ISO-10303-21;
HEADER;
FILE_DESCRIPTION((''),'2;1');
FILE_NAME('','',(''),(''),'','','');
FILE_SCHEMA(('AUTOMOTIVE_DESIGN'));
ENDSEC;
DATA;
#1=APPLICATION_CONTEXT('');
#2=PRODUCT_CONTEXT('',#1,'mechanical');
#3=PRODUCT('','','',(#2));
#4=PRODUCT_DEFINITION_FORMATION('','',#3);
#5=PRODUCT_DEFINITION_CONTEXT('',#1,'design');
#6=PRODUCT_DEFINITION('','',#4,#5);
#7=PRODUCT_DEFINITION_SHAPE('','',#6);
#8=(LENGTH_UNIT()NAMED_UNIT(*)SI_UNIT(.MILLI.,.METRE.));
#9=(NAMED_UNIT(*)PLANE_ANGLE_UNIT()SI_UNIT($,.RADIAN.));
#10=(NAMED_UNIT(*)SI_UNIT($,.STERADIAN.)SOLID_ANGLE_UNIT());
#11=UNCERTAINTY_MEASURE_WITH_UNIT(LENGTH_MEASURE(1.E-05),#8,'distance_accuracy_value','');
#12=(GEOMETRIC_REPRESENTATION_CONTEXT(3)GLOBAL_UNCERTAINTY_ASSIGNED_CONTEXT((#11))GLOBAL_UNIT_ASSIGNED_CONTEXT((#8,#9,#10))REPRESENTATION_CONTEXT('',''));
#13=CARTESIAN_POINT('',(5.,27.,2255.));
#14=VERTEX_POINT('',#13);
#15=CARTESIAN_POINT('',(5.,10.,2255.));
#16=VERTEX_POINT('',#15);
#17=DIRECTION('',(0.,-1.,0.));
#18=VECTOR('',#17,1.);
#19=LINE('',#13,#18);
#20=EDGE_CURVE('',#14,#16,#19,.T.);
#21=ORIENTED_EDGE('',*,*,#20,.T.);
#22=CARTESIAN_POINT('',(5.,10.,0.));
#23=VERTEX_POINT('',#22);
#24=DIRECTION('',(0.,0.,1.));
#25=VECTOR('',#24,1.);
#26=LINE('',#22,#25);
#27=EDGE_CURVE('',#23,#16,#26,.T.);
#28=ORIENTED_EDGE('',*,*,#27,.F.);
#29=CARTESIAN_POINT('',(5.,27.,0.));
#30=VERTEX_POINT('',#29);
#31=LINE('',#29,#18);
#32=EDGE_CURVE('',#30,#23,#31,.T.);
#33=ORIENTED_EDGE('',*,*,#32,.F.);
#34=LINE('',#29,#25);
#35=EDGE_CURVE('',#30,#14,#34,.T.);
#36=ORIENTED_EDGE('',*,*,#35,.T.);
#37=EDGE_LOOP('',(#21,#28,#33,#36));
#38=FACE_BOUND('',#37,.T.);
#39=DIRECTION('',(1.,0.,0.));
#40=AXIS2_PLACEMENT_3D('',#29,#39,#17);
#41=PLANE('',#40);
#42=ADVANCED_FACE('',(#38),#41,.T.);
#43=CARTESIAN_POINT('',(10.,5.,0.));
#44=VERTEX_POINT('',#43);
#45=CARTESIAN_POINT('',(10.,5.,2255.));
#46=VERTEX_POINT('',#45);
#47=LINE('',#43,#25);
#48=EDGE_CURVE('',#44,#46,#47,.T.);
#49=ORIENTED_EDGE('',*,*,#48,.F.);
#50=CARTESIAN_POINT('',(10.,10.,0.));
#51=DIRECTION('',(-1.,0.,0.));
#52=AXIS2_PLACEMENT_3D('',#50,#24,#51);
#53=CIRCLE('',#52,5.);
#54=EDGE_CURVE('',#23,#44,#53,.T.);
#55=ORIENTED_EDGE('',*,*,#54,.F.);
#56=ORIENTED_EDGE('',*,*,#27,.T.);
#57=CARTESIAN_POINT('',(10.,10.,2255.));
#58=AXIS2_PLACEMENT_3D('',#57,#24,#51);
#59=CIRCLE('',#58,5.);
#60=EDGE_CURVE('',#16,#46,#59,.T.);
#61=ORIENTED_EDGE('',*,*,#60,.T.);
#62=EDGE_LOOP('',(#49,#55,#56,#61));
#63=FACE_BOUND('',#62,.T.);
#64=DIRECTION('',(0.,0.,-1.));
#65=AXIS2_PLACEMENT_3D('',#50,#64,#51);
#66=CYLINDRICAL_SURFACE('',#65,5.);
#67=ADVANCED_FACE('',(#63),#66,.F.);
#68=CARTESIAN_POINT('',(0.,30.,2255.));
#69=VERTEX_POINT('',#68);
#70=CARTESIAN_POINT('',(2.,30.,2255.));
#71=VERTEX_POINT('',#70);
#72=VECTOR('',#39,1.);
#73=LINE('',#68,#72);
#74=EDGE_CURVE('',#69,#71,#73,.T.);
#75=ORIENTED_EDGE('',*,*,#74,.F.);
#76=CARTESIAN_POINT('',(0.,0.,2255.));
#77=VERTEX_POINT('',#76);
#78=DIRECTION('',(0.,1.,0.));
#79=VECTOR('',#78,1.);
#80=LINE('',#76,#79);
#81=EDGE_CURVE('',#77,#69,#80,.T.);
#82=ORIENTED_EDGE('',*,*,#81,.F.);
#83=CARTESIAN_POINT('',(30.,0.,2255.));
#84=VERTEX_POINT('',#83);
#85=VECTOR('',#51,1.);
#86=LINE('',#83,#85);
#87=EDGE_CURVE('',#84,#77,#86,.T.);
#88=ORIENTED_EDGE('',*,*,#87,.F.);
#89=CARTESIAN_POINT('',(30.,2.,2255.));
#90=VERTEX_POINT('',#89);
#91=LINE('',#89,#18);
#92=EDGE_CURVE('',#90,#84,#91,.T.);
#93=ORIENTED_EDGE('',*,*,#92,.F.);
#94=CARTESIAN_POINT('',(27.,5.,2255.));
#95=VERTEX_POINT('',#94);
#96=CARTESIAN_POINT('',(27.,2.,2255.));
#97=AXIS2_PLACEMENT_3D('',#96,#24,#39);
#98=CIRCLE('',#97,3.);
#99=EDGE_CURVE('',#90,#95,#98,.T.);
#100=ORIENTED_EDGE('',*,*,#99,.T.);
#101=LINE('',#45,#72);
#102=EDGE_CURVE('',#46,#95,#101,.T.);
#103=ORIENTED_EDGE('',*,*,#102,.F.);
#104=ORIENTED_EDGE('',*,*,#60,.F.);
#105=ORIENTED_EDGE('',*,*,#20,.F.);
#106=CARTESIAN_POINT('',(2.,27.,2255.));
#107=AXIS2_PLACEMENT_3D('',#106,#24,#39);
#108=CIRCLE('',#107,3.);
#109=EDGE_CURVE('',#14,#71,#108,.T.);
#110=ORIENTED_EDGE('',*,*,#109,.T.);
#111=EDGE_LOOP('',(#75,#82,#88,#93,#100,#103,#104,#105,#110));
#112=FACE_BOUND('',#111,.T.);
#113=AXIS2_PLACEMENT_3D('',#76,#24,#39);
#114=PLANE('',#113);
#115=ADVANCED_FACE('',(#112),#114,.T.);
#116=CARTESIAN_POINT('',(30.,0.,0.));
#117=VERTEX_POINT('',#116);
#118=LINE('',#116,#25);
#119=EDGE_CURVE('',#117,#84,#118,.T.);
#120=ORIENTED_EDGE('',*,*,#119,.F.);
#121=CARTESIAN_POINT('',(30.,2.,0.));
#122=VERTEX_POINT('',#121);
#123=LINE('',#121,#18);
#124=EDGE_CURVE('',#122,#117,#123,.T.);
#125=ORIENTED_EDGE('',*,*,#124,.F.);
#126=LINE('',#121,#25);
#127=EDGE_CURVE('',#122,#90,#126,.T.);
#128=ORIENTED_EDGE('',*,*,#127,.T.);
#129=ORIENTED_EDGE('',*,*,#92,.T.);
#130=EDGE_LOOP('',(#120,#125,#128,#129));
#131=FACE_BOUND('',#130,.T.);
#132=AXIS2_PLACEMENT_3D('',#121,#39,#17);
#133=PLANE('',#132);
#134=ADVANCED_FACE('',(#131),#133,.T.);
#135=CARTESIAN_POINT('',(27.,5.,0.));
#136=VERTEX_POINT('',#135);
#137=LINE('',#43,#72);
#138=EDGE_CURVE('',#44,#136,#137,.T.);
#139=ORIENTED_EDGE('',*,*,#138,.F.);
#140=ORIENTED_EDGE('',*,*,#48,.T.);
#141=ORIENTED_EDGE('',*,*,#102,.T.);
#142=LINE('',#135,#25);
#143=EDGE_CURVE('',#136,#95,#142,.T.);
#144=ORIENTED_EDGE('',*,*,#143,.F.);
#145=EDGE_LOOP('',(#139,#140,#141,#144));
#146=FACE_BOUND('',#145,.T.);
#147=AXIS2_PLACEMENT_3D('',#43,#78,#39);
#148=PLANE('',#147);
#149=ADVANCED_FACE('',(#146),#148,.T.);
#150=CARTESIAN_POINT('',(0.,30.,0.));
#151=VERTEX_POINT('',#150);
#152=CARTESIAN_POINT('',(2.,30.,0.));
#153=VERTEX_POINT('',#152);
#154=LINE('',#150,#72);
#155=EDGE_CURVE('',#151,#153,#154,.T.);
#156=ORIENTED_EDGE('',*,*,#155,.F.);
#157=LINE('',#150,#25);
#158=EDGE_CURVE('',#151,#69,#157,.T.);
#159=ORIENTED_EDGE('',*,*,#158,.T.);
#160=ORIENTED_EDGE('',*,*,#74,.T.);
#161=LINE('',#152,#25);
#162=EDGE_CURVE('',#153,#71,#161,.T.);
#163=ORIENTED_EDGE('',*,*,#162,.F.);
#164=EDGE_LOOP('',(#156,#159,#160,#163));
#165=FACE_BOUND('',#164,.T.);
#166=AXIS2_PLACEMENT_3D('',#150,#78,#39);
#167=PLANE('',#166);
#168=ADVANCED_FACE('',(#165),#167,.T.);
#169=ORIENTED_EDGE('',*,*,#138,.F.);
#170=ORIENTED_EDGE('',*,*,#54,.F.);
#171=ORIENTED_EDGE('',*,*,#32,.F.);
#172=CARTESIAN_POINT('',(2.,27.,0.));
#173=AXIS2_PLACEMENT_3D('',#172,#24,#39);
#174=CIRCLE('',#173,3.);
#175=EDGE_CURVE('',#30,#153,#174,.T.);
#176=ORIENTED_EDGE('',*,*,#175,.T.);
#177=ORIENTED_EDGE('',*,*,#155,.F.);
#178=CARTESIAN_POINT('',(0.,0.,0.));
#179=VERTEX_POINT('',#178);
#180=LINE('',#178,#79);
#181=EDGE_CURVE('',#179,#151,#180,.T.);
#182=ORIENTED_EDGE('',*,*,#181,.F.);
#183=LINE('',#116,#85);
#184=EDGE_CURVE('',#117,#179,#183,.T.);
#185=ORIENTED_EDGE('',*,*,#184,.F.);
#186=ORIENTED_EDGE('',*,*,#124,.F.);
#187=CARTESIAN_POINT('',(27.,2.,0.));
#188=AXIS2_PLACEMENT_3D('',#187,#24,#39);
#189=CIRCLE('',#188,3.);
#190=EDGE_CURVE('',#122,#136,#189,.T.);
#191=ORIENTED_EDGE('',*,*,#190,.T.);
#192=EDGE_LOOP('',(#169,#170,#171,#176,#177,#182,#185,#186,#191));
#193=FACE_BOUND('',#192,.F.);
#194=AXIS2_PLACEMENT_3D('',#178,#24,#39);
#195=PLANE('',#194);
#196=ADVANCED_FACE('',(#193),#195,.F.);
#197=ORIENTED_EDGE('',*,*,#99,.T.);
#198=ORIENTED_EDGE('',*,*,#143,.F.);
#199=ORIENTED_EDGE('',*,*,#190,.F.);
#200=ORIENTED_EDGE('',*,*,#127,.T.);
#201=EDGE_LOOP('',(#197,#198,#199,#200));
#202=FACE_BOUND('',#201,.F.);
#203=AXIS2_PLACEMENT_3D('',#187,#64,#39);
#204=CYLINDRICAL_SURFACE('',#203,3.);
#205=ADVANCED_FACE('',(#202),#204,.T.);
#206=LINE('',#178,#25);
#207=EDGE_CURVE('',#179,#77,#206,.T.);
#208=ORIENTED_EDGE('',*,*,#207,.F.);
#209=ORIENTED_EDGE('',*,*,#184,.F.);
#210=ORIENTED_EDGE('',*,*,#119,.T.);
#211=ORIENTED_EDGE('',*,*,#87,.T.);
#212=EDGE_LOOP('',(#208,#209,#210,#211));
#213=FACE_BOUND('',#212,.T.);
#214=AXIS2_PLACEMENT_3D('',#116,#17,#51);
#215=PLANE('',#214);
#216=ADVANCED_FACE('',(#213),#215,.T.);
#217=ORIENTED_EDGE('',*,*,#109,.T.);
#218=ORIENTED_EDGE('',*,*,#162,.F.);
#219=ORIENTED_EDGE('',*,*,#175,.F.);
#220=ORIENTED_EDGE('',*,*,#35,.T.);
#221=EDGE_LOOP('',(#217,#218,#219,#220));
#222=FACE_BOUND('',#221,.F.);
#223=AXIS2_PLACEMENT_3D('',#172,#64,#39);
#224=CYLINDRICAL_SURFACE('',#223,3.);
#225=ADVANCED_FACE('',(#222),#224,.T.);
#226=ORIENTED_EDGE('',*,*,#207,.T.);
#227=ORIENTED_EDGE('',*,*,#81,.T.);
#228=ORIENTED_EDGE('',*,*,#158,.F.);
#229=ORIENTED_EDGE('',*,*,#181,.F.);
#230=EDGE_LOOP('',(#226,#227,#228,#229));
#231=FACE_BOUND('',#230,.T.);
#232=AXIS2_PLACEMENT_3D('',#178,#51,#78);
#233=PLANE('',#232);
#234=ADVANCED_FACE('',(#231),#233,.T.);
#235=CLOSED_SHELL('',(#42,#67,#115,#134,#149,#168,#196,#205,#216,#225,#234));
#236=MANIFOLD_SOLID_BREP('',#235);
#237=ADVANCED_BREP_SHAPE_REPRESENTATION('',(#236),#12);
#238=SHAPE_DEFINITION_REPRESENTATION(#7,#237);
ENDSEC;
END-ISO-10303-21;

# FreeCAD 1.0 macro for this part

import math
import FreeCAD as App
import Part
import Sketcher
from FreeCAD import Vector
Q = App.Units.Quantity

doc = App.newDocument("Part")
body = doc.addObject("PartDesign::Body", "Body")

# Sketch on XY plane
sketch1 = body.newObject("Sketcher::SketchObject", "Sketch")
sketch1.AttachmentSupport = (doc.getObject("XY_Plane"), [""])
sketch1.MapMode = "FlatFace"
sketch1.addGeometry([
    Part.LineSegment(Vector(0, 0, 0), Vector(30, 0, 0)),  # 0
    Part.LineSegment(Vector(30, 0, 0), Vector(30, 2, 0)),  # 1
    Part.ArcOfCircle(Part.Circle(Vector(27, 2, 0), Vector(0, 0, 1), 3), math.radians(0), math.radians(90)),  # 2
    Part.LineSegment(Vector(27, 5, 0), Vector(10, 5, 0)),  # 3
    Part.ArcOfCircle(Part.Circle(Vector(10, 10, 0), Vector(0, 0, 1), 5), math.radians(180), math.radians(270)),  # 4
    Part.LineSegment(Vector(5, 10, 0), Vector(5, 27, 0)),  # 5
    Part.ArcOfCircle(Part.Circle(Vector(2, 27, 0), Vector(0, 0, 1), 3), math.radians(0), math.radians(90)),  # 6
    Part.LineSegment(Vector(2, 30, 0), Vector(0, 30, 0)),  # 7
    Part.LineSegment(Vector(0, 30, 0), Vector(0, 0, 0)),  # 8
], False)
sketch1.addConstraint([
    Sketcher.Constraint("Coincident", 0, 2, 1, 1),
    Sketcher.Constraint("Tangent", 1, 2, 2, 1),
    Sketcher.Constraint("Tangent", 2, 2, 3, 1),
    Sketcher.Constraint("Tangent", 3, 2, 4, 2),
    Sketcher.Constraint("Tangent", 4, 1, 5, 1),
    Sketcher.Constraint("Tangent", 5, 2, 6, 1),
    Sketcher.Constraint("Tangent", 6, 2, 7, 1),
    Sketcher.Constraint("Coincident", 7, 2, 8, 1),
    Sketcher.Constraint("Coincident", 8, 2, 0, 1),
    Sketcher.Constraint("Horizontal", 0),
    Sketcher.Constraint("Vertical", 1),
    Sketcher.Constraint("Horizontal", 3),
    Sketcher.Constraint("Vertical", 5),
    Sketcher.Constraint("Horizontal", 7),
    Sketcher.Constraint("Vertical", 8),
    Sketcher.Constraint("Coincident", 8, 2, -1, 1),
    Sketcher.Constraint("Equal", 2, 6),
    Sketcher.Constraint("Equal", 7, 1),
    Sketcher.Constraint("Equal", 3, 5),
    Sketcher.Constraint("Radius", 2, Q("3 mm")),
    Sketcher.Constraint("Radius", 4, Q("5 mm")),
    Sketcher.Constraint("DistanceX", 0, 1, 0, 2, Q("30 mm")),
    Sketcher.Constraint("DistanceY", -1, 1, 2, 2, Q("5 mm")),
])
pad1 = body.newObject("PartDesign::Pad", "Pad")
pad1.Profile = sketch1
pad1.Length = 2255

doc.recompute()
